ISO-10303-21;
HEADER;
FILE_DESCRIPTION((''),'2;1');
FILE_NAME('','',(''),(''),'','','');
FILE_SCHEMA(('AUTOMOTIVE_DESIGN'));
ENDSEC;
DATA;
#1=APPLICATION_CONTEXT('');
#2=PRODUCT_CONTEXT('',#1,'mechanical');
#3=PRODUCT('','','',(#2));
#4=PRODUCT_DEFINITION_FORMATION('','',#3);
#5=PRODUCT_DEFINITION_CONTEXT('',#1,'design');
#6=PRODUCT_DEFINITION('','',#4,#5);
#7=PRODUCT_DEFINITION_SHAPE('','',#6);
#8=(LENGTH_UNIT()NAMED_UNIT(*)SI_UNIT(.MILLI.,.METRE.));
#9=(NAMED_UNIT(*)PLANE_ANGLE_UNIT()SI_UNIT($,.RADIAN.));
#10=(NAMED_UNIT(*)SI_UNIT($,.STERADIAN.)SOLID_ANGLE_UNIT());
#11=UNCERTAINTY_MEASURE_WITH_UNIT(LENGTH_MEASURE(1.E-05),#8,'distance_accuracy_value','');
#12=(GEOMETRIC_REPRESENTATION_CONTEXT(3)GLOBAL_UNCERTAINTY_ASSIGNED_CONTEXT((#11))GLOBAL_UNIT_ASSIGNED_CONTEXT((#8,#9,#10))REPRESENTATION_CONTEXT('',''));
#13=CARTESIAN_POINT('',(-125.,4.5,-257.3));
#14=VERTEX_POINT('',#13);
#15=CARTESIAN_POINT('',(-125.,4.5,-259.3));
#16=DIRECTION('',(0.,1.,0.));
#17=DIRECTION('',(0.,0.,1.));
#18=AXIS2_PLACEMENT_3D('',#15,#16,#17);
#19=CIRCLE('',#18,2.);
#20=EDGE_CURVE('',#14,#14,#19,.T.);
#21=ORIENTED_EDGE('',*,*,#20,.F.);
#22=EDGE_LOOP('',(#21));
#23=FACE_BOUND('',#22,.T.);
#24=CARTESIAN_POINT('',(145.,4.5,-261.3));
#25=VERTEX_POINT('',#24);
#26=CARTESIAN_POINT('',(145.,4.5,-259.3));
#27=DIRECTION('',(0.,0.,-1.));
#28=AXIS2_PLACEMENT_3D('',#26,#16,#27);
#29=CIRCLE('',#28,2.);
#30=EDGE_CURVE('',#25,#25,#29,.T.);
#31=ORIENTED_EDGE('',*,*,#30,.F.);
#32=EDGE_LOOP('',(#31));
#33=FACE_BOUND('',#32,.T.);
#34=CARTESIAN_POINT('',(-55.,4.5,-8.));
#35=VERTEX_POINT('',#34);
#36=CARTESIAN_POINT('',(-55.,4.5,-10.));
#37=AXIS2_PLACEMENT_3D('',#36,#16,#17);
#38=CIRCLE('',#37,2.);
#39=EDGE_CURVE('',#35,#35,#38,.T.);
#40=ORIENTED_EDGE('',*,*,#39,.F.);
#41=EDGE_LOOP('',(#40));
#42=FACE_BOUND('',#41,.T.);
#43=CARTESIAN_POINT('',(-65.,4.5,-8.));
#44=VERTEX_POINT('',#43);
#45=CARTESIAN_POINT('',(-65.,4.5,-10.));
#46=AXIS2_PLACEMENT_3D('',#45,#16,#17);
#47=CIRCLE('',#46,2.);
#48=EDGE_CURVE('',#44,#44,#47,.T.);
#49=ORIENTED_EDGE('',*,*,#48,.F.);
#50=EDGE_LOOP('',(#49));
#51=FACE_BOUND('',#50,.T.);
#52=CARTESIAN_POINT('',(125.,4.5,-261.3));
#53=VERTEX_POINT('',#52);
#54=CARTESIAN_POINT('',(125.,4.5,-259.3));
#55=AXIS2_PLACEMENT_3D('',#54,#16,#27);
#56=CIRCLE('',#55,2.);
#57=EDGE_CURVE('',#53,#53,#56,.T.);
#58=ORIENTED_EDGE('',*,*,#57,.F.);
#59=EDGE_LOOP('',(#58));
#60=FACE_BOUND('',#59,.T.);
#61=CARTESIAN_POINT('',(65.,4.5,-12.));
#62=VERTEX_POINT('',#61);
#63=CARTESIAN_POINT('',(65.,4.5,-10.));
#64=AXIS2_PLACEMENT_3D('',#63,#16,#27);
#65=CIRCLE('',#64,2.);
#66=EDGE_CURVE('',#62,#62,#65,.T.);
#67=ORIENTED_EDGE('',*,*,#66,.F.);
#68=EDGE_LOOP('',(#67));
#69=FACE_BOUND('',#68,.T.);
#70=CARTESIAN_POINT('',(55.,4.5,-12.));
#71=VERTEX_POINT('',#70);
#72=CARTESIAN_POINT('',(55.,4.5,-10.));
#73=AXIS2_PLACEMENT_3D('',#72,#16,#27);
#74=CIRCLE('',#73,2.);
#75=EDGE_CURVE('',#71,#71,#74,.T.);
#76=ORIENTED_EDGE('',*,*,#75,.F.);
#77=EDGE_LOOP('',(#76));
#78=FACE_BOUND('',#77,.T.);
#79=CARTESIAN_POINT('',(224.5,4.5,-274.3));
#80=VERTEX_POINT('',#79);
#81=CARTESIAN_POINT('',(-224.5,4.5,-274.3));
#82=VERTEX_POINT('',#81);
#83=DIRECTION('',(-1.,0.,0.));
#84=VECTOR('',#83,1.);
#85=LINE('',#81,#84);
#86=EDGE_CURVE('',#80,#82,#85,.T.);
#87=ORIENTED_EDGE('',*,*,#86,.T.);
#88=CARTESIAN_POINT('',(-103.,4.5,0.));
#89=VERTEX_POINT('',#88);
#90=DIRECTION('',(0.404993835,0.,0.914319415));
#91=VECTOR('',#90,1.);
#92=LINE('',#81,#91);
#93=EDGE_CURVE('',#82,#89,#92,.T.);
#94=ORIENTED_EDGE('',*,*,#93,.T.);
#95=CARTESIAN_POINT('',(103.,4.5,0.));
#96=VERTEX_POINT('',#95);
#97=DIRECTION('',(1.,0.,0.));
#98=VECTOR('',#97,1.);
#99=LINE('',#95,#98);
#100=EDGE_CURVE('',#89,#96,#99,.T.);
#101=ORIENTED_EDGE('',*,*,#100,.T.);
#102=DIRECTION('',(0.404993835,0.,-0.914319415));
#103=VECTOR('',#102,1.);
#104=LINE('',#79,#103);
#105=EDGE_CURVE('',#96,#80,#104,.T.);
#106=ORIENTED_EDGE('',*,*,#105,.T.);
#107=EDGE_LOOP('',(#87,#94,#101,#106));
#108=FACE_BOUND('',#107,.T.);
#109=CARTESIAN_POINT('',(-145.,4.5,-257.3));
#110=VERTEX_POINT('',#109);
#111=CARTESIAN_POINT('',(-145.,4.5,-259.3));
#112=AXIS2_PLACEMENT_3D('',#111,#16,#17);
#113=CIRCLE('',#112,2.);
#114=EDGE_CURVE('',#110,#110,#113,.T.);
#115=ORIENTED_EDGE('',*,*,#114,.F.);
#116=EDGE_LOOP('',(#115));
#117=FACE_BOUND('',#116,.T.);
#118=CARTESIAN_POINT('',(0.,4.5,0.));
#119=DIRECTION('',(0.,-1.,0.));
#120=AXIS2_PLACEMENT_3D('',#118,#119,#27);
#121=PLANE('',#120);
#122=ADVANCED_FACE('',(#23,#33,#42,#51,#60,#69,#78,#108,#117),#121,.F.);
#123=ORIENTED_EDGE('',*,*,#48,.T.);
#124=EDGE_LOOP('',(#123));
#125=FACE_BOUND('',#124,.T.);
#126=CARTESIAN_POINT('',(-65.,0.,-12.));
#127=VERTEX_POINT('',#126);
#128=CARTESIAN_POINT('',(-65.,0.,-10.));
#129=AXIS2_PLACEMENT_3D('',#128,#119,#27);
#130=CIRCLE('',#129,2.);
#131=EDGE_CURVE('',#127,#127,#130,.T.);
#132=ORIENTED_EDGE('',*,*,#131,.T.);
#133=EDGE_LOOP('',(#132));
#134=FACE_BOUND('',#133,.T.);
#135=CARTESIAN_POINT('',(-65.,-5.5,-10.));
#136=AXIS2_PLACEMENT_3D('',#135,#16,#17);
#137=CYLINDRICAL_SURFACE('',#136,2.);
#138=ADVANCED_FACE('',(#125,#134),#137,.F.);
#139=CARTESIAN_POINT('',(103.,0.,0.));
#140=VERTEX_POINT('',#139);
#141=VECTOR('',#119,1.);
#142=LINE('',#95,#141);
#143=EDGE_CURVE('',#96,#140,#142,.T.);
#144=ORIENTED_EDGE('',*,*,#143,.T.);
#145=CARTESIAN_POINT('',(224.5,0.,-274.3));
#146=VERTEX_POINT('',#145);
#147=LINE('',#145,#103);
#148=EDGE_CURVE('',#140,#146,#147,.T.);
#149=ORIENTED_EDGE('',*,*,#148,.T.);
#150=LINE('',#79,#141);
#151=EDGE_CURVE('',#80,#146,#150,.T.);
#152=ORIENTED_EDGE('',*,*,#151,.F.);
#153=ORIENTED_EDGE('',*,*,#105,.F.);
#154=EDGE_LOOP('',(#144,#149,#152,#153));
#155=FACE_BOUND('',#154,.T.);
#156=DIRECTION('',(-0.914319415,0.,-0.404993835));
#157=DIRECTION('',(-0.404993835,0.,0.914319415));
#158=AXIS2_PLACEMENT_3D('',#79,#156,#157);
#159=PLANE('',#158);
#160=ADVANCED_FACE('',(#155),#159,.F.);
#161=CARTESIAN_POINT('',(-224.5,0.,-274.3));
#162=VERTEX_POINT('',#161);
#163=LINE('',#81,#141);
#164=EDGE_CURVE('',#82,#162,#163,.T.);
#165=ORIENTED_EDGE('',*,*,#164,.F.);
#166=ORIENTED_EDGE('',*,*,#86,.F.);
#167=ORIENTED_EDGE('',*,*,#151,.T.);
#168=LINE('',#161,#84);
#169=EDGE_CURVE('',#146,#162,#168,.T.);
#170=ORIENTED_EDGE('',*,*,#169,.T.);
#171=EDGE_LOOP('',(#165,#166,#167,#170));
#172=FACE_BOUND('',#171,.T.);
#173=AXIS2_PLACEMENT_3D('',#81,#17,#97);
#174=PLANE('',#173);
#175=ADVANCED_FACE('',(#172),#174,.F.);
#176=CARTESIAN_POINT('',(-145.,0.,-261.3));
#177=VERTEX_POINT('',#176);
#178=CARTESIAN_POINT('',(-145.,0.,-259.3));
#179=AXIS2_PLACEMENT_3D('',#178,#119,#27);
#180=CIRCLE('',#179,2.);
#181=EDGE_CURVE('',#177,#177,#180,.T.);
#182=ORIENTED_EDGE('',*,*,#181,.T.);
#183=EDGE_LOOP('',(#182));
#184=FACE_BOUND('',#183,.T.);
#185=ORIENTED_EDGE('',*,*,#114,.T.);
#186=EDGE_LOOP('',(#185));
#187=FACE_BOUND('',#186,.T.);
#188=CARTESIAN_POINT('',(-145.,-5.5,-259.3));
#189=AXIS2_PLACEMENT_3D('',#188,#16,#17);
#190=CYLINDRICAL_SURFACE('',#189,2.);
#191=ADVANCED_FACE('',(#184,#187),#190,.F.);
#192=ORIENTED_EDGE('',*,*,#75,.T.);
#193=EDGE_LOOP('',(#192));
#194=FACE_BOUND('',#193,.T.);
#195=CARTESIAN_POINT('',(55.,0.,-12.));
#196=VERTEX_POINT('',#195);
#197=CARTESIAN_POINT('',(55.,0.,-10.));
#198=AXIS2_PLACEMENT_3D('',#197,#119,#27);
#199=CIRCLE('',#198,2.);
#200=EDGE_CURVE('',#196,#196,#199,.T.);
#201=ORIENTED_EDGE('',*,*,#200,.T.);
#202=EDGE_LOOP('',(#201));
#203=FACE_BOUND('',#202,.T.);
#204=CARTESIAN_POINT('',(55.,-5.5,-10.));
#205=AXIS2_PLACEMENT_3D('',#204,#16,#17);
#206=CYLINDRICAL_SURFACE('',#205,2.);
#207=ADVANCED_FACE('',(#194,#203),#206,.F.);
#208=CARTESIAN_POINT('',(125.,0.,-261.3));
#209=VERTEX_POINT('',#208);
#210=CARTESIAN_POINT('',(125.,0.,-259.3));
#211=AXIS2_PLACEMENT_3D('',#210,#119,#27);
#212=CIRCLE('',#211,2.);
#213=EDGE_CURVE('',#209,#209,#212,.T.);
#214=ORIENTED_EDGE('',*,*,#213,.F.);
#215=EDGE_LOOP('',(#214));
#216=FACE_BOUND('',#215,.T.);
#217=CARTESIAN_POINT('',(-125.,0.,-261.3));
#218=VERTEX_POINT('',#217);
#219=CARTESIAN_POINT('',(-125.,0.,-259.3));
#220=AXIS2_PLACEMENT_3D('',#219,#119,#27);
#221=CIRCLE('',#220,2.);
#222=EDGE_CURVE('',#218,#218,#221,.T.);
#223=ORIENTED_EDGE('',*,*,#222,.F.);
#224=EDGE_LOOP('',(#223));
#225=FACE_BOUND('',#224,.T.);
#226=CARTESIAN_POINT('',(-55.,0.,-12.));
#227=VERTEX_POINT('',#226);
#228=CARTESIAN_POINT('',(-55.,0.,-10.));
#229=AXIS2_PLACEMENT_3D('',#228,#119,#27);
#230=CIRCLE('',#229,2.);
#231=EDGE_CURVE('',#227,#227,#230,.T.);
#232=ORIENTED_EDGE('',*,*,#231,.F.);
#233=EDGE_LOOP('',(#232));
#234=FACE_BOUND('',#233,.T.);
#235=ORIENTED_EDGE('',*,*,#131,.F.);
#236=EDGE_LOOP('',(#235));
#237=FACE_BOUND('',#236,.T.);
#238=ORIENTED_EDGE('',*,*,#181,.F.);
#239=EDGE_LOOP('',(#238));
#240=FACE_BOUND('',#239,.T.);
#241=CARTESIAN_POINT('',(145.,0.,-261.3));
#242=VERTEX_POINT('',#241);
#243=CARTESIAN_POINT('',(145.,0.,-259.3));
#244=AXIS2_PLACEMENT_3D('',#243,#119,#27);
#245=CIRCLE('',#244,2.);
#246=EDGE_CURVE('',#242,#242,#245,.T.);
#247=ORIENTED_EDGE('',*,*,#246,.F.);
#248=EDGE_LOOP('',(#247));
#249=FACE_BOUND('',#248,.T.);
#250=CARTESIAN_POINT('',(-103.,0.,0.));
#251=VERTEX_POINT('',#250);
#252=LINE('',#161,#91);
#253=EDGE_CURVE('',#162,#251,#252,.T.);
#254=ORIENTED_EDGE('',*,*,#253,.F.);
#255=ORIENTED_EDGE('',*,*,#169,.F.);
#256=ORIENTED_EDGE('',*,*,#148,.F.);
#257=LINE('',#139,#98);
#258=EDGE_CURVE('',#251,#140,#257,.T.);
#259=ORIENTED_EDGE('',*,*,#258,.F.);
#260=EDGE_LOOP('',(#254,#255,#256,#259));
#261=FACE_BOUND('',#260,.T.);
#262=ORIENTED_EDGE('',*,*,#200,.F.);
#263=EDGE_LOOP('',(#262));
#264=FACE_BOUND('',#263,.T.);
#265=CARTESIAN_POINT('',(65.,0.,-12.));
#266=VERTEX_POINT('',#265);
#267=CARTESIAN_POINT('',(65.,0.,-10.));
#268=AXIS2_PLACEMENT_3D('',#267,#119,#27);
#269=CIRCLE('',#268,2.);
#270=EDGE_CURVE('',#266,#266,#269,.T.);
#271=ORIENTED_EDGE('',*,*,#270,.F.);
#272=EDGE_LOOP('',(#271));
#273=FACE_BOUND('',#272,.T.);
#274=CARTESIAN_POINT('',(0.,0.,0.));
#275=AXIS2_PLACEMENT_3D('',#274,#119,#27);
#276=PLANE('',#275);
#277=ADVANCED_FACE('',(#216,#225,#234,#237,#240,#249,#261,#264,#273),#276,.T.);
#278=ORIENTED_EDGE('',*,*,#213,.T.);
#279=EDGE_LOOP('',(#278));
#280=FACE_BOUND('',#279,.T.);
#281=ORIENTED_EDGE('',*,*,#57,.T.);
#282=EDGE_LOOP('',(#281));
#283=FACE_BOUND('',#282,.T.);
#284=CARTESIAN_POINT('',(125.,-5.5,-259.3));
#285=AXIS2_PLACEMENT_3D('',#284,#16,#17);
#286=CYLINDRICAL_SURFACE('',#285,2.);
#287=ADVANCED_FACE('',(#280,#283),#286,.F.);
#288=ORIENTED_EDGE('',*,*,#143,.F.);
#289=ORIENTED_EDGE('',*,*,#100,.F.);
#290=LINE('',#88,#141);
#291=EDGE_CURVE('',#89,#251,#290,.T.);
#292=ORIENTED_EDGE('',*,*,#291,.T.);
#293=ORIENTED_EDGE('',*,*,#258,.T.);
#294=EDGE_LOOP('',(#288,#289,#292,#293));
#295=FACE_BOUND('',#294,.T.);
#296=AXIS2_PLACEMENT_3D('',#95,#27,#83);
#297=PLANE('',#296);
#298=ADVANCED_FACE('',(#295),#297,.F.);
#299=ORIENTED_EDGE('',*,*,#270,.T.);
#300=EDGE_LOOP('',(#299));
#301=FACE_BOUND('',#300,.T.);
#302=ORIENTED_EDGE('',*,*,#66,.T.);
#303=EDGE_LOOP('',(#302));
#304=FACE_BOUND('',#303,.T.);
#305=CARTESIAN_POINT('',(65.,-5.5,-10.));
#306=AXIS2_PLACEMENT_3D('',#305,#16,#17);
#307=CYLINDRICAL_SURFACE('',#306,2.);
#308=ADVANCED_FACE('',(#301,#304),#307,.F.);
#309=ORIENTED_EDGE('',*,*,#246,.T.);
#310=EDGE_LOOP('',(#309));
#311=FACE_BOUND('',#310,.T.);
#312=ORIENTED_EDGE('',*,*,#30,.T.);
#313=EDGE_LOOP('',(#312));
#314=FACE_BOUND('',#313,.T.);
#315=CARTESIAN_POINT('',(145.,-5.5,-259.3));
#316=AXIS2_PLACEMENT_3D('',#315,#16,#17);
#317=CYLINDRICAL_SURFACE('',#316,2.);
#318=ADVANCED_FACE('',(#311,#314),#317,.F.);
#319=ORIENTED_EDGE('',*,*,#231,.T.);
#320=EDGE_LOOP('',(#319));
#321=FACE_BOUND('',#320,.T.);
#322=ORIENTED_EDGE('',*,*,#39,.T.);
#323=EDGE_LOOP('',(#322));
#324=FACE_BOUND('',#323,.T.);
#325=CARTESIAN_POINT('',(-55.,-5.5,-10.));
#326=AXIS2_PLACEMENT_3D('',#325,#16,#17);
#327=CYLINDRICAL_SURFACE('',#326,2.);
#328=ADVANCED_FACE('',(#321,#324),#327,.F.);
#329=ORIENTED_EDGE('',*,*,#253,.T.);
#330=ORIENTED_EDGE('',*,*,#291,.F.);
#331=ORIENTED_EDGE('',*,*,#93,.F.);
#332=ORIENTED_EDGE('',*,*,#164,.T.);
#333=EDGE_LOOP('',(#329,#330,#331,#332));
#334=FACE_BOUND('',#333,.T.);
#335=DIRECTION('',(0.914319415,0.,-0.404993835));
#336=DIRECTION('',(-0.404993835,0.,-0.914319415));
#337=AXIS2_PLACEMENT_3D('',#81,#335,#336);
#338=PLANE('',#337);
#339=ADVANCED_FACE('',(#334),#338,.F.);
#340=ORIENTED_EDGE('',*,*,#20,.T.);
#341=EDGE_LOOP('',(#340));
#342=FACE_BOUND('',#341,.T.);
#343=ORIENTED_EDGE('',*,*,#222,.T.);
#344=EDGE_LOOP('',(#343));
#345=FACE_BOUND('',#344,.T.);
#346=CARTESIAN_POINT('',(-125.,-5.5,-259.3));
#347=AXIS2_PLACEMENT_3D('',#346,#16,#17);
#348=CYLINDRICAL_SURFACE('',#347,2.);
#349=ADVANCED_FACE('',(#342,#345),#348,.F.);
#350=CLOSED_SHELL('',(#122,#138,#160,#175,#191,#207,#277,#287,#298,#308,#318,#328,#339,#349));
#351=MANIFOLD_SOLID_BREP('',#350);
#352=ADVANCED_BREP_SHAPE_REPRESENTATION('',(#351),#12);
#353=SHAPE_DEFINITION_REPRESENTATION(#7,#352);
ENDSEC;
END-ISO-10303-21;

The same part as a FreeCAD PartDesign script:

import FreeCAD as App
import Part
import Sketcher

V = App.Vector

doc = App.newDocument("Part")
body = doc.addObject("PartDesign::Body", "Body")

# Sketch on XZ plane
sketch1 = doc.addObject("Sketcher::SketchObject", "Sketch")
body.addObject(sketch1)
sketch1.AttachmentSupport = (doc.XZ_Plane, [""])
sketch1.MapMode = "FlatFace"
sketch1.addGeometry(Part.LineSegment(V(224, -274, 0), V(-224, -274, 0)), False)
sketch1.addGeometry(Part.LineSegment(V(-224, -274, 0), V(-103, 0, 0)), False)
sketch1.addGeometry(Part.LineSegment(V(-103, 0, 0), V(103, 0, 0)), False)
sketch1.addGeometry(Part.LineSegment(V(103, 0, 0), V(224, -274, 0)), False)
sketch1.addConstraint(Sketcher.Constraint("Coincident", 0, 2, 1, 1))
sketch1.addConstraint(Sketcher.Constraint("Coincident", 1, 2, 2, 1))
sketch1.addConstraint(Sketcher.Constraint("Coincident", 2, 2, 3, 1))
sketch1.addConstraint(Sketcher.Constraint("Coincident", 3, 2, 0, 1))
sketch1.addConstraint(Sketcher.Constraint("Horizontal", 0))
sketch1.addConstraint(Sketcher.Constraint("Horizontal", 2))
sketch1.addConstraint(Sketcher.Constraint("Symmetric", 1, 2, 2, 2, -1, 1))
sketch1.addConstraint(Sketcher.Constraint("Equal", 1, 3))
sketch1.addConstraint(Sketcher.Constraint("DistanceX", 0, 2, 0, 1, 449.0))
sketch1.addConstraint(Sketcher.Constraint("DistanceX", 2, 1, 2, 2, 206.0))
sketch1.addConstraint(Sketcher.Constraint("DistanceY", 0, 2, -1, 1, 274.3))
pad1 = doc.addObject("PartDesign::Pad", "Pad")
body.addObject(pad1)
pad1.Profile = sketch1
pad1.Length = 4.5
pad1.Reversed = True

# Sketch on XZ plane
sketch2 = doc.addObject("Sketcher::SketchObject", "Sketch001")
body.addObject(sketch2)
sketch2.AttachmentSupport = (doc.XZ_Plane, [""])
sketch2.MapMode = "FlatFace"
sketch2.AttachmentOffset = App.Placement(V(0, 0, -4.5), App.Rotation())
sketch2.addGeometry(Part.Circle(V(-145, -259.3, 0), V(0, 0, 1), 2), False)
sketch2.addGeometry(Part.Circle(V(-125, -259.3, 0), V(0, 0, 1), 2), False)
sketch2.addGeometry(Part.Circle(V(125, -259.3, 0), V(0, 0, 1), 2), False)
sketch2.addGeometry(Part.Circle(V(145, -259.3, 0), V(0, 0, 1), 2), False)
sketch2.addGeometry(Part.Circle(V(-65, -10, 0), V(0, 0, 1), 2), False)
sketch2.addGeometry(Part.Circle(V(-55, -10, 0), V(0, 0, 1), 2), False)
sketch2.addGeometry(Part.Circle(V(55, -10, 0), V(0, 0, 1), 2), False)
sketch2.addGeometry(Part.Circle(V(65, -10, 0), V(0, 0, 1), 2), False)
sketch2.addConstraint(Sketcher.Constraint("Equal", 0, 1))
sketch2.addConstraint(Sketcher.Constraint("Equal", 1, 2))
sketch2.addConstraint(Sketcher.Constraint("Equal", 2, 3))
sketch2.addConstraint(Sketcher.Constraint("Equal", 3, 4))
sketch2.addConstraint(Sketcher.Constraint("Equal", 4, 5))
sketch2.addConstraint(Sketcher.Constraint("Equal", 5, 6))
sketch2.addConstraint(Sketcher.Constraint("Equal", 6, 7))
sketch2.addConstraint(Sketcher.Constraint("Symmetric", 1, 3, 2, 3, -2))
sketch2.addConstraint(Sketcher.Constraint("Symmetric", 0, 3, 3, 3, -2))
sketch2.addConstraint(Sketcher.Constraint("Symmetric", 5, 3, 6, 3, -2))
sketch2.addConstraint(Sketcher.Constraint("Symmetric", 4, 3, 7, 3, -2))
sketch2.addConstraint(Sketcher.Constraint("Horizontal", 0, 3, 1, 3))
sketch2.addConstraint(Sketcher.Constraint("Horizontal", 4, 3, 5, 3))
sketch2.addConstraint(Sketcher.Constraint("Diameter", 0, 4.0))
sketch2.addConstraint(Sketcher.Constraint("DistanceX", 0, 3, -1, 1, 145.0))
sketch2.addConstraint(Sketcher.Constraint("DistanceX", 1, 3, -1, 1, 125.0))
sketch2.addConstraint(Sketcher.Constraint("DistanceX", 4, 3, -1, 1, 65.0))
sketch2.addConstraint(Sketcher.Constraint("DistanceY", 4, 3, -1, 1, 10.0))
sketch2.addConstraint(Sketcher.Constraint("DistanceX", 5, 3, -1, 1, 55.0))
sketch2.addConstraint(Sketcher.Constraint("DistanceY", 0, 3, -1, 1, 259.3))
pocket1 = doc.addObject("PartDesign::Pocket", "Pocket")
body.addObject(pocket1)
pocket1.Profile = sketch2
pocket1.Length = 10
pocket1.Reversed = True

doc.recompute()
